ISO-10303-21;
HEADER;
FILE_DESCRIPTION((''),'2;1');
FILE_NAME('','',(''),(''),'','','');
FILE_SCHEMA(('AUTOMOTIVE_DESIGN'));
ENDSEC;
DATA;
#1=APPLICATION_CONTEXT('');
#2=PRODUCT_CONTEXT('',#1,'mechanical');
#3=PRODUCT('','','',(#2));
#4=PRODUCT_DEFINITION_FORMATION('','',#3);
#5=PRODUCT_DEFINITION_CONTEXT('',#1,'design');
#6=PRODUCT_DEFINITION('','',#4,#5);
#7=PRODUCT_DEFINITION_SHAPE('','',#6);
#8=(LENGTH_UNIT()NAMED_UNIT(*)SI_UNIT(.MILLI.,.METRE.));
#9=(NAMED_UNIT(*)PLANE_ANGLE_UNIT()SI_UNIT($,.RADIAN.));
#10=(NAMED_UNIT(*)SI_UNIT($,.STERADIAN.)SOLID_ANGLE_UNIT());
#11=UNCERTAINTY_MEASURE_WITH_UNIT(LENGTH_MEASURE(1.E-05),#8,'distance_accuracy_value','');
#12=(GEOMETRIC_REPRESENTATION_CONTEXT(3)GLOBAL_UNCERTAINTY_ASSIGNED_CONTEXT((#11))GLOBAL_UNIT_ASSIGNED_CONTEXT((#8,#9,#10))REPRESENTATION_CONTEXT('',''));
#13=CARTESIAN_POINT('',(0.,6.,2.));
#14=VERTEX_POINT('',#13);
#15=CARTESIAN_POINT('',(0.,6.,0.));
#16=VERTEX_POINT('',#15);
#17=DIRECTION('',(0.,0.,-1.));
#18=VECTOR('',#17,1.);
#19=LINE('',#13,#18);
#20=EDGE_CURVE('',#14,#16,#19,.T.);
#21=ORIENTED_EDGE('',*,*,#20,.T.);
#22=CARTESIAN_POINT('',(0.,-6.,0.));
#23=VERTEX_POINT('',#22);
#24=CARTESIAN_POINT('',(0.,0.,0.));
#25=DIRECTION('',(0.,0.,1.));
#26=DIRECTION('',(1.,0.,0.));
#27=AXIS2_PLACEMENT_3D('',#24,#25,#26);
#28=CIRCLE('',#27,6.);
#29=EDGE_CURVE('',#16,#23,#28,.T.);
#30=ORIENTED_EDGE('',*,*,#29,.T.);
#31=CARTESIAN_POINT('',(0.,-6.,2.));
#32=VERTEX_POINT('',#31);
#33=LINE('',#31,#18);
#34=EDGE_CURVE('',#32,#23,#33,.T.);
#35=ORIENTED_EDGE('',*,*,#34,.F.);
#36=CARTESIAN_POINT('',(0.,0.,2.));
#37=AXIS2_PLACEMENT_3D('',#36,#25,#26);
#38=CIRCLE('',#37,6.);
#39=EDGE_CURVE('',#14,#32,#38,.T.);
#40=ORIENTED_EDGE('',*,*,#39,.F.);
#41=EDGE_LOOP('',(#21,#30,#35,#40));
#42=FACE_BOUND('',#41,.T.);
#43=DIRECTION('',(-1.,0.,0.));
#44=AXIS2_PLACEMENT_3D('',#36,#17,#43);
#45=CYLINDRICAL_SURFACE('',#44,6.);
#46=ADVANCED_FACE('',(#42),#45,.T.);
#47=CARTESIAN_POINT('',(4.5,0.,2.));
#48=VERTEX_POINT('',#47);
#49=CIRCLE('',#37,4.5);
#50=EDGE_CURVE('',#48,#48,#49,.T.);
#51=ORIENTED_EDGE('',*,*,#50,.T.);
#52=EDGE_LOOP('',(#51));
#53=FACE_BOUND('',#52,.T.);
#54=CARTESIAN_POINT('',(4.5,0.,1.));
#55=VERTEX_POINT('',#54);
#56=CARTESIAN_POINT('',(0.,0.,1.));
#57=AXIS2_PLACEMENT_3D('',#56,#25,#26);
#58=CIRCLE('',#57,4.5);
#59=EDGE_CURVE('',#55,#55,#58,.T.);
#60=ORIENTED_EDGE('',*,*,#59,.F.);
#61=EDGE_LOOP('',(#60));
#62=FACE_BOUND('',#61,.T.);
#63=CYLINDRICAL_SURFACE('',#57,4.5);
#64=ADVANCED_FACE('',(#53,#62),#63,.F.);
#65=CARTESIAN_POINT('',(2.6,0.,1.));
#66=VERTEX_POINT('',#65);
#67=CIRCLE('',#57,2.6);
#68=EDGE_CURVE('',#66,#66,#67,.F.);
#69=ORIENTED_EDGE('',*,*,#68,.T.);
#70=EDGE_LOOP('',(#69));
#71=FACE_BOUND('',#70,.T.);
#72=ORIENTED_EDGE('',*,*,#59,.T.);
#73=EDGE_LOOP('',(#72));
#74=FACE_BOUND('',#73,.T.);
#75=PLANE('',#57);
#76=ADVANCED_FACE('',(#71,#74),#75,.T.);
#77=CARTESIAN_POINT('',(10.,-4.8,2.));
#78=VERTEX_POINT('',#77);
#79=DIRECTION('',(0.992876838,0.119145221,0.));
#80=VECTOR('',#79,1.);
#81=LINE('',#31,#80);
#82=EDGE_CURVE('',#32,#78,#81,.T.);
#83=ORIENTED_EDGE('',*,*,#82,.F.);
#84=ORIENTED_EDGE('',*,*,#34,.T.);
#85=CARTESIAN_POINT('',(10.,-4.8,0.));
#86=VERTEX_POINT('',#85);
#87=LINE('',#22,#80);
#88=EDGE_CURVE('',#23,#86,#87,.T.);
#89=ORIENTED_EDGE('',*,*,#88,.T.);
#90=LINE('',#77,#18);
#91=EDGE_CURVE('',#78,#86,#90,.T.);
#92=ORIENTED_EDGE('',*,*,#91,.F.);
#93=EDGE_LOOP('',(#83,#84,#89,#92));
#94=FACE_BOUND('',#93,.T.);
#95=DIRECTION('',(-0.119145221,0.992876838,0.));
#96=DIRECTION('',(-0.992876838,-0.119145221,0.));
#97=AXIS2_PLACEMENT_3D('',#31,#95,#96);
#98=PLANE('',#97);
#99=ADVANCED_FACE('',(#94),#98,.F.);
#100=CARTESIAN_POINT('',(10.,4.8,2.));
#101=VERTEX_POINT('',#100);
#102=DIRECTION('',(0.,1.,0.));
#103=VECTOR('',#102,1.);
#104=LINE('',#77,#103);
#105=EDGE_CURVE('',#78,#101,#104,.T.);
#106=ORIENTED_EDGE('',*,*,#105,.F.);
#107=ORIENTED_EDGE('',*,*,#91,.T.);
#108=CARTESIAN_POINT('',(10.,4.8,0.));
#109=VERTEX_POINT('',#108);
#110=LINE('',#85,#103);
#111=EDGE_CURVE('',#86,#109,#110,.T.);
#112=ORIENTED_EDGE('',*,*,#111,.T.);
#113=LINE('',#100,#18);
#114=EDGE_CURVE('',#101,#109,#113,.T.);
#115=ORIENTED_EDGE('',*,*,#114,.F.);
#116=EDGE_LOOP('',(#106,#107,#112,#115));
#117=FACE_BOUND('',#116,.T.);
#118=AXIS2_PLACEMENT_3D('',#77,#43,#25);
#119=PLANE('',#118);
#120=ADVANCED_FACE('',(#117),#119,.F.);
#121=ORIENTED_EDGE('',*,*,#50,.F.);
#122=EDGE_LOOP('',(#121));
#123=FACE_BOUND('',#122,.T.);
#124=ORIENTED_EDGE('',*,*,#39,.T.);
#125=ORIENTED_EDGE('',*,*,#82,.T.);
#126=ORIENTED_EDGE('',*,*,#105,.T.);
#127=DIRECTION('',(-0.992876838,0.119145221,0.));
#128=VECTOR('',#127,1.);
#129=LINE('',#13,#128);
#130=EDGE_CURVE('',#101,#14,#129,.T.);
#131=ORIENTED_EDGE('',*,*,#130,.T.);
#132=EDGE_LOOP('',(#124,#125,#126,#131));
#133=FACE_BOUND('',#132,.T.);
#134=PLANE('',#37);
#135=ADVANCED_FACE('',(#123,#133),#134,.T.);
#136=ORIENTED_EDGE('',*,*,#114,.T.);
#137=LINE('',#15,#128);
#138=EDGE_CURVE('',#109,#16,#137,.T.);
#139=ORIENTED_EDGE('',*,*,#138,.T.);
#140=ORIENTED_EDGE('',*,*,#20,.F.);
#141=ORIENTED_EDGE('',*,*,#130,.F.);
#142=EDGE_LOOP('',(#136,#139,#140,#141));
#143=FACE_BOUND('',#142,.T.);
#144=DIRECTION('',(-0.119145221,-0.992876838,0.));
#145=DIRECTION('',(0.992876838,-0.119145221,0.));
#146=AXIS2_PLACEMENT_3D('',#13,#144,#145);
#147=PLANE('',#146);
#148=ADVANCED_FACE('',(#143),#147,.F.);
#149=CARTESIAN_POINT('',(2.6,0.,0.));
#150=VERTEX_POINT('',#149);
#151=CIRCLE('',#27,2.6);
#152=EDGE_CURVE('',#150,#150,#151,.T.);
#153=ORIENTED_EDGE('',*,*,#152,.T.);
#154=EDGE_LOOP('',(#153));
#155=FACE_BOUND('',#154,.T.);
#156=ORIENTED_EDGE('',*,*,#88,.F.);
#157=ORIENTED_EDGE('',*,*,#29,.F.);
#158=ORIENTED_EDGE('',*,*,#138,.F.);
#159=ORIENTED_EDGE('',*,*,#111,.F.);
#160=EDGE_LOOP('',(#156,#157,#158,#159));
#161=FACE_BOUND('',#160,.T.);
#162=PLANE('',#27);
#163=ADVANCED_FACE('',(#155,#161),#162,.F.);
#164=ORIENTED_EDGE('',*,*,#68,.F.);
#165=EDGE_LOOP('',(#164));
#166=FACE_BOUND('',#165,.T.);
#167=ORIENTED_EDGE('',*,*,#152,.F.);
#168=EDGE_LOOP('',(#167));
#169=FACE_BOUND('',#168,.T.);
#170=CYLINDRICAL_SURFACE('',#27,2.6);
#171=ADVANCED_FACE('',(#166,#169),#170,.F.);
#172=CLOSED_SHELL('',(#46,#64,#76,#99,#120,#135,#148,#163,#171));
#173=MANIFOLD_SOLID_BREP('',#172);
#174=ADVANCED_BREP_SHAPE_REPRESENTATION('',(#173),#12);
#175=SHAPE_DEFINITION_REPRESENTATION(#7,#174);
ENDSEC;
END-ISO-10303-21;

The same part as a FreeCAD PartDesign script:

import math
import FreeCAD as App
import Part
import Sketcher

doc = App.newDocument("Part")
body = doc.addObject("PartDesign::Body", "Body")

sketch1 = body.newObject("Sketcher::SketchObject", "Sketch")
sketch1.AttachmentSupport = (doc.getObject("XY_Plane"), [""])
sketch1.MapMode = "FlatFace"
sketch1.addGeometry(Part.LineSegment(App.Vector(10, -5, 0), App.Vector(10, 5, 0)), False)
sketch1.addGeometry(Part.LineSegment(App.Vector(10, 5, 0), App.Vector(0, 6, 0)), False)
sketch1.addGeometry(Part.ArcOfCircle(Part.Circle(App.Vector(0, 0, 0), App.Vector(0, 0, 1), 6), math.radians(90), math.radians(270)), False)
sketch1.addGeometry(Part.LineSegment(App.Vector(0, -6, 0), App.Vector(10, -5, 0)), False)
sketch1.addConstraint(Sketcher.Constraint("Coincident", 0, 2, 1, 1))
sketch1.addConstraint(Sketcher.Constraint("Coincident", 1, 2, 2, 1))
sketch1.addConstraint(Sketcher.Constraint("Coincident", 2, 2, 3, 1))
sketch1.addConstraint(Sketcher.Constraint("Coincident", 3, 2, 0, 1))
sketch1.addConstraint(Sketcher.Constraint("Vertical", 0))
sketch1.addConstraint(Sketcher.Constraint("Coincident", 2, 3, -1, 1))
sketch1.addConstraint(Sketcher.Constraint("PointOnObject", 1, 2, -2))
sketch1.addConstraint(Sketcher.Constraint("PointOnObject", 2, 2, -2))
sketch1.addConstraint(Sketcher.Constraint("Equal", 1, 3))
sketch1.addConstraint(Sketcher.Constraint("Radius", 2, 6.0))
sketch1.addConstraint(Sketcher.Constraint("DistanceY", 0, 1, 0, 2, 9.6))
sketch1.addConstraint(Sketcher.Constraint("DistanceX", -1, 1, 0, 2, 10.0))
pad1 = body.newObject("PartDesign::Pad", "Pad")
pad1.Profile = sketch1
pad1.Length = 2

sketch2 = body.newObject("Sketcher::SketchObject", "Sketch001")
sketch2.AttachmentSupport = (doc.getObject("XY_Plane"), [""])
sketch2.MapMode = "FlatFace"
sketch2.AttachmentOffset = App.Placement(App.Vector(0, 0, 2), App.Rotation())
sketch2.addGeometry(Part.Circle(App.Vector(0, 0, 0), App.Vector(0, 0, 1), 2.6), False)
sketch2.addConstraint(Sketcher.Constraint("Coincident", 0, 3, -1, 1))
sketch2.addConstraint(Sketcher.Constraint("Diameter", 0, 5.2))
pocket1 = body.newObject("PartDesign::Pocket", "Pocket")
pocket1.Profile = sketch2
pocket1.Length = 2

sketch3 = body.newObject("Sketcher::SketchObject", "Sketch002")
sketch3.AttachmentSupport = (doc.getObject("XY_Plane"), [""])
sketch3.MapMode = "FlatFace"
sketch3.AttachmentOffset = App.Placement(App.Vector(0, 0, 2), App.Rotation())
sketch3.addGeometry(Part.Circle(App.Vector(0, 0, 0), App.Vector(0, 0, 1), 4.5), False)
sketch3.addConstraint(Sketcher.Constraint("Coincident", 0, 3, -1, 1))
sketch3.addConstraint(Sketcher.Constraint("Diameter", 0, 9.0))
pocket2 = body.newObject("PartDesign::Pocket", "Pocket001")
pocket2.Profile = sketch3
pocket2.Length = 1

doc.recompute()
